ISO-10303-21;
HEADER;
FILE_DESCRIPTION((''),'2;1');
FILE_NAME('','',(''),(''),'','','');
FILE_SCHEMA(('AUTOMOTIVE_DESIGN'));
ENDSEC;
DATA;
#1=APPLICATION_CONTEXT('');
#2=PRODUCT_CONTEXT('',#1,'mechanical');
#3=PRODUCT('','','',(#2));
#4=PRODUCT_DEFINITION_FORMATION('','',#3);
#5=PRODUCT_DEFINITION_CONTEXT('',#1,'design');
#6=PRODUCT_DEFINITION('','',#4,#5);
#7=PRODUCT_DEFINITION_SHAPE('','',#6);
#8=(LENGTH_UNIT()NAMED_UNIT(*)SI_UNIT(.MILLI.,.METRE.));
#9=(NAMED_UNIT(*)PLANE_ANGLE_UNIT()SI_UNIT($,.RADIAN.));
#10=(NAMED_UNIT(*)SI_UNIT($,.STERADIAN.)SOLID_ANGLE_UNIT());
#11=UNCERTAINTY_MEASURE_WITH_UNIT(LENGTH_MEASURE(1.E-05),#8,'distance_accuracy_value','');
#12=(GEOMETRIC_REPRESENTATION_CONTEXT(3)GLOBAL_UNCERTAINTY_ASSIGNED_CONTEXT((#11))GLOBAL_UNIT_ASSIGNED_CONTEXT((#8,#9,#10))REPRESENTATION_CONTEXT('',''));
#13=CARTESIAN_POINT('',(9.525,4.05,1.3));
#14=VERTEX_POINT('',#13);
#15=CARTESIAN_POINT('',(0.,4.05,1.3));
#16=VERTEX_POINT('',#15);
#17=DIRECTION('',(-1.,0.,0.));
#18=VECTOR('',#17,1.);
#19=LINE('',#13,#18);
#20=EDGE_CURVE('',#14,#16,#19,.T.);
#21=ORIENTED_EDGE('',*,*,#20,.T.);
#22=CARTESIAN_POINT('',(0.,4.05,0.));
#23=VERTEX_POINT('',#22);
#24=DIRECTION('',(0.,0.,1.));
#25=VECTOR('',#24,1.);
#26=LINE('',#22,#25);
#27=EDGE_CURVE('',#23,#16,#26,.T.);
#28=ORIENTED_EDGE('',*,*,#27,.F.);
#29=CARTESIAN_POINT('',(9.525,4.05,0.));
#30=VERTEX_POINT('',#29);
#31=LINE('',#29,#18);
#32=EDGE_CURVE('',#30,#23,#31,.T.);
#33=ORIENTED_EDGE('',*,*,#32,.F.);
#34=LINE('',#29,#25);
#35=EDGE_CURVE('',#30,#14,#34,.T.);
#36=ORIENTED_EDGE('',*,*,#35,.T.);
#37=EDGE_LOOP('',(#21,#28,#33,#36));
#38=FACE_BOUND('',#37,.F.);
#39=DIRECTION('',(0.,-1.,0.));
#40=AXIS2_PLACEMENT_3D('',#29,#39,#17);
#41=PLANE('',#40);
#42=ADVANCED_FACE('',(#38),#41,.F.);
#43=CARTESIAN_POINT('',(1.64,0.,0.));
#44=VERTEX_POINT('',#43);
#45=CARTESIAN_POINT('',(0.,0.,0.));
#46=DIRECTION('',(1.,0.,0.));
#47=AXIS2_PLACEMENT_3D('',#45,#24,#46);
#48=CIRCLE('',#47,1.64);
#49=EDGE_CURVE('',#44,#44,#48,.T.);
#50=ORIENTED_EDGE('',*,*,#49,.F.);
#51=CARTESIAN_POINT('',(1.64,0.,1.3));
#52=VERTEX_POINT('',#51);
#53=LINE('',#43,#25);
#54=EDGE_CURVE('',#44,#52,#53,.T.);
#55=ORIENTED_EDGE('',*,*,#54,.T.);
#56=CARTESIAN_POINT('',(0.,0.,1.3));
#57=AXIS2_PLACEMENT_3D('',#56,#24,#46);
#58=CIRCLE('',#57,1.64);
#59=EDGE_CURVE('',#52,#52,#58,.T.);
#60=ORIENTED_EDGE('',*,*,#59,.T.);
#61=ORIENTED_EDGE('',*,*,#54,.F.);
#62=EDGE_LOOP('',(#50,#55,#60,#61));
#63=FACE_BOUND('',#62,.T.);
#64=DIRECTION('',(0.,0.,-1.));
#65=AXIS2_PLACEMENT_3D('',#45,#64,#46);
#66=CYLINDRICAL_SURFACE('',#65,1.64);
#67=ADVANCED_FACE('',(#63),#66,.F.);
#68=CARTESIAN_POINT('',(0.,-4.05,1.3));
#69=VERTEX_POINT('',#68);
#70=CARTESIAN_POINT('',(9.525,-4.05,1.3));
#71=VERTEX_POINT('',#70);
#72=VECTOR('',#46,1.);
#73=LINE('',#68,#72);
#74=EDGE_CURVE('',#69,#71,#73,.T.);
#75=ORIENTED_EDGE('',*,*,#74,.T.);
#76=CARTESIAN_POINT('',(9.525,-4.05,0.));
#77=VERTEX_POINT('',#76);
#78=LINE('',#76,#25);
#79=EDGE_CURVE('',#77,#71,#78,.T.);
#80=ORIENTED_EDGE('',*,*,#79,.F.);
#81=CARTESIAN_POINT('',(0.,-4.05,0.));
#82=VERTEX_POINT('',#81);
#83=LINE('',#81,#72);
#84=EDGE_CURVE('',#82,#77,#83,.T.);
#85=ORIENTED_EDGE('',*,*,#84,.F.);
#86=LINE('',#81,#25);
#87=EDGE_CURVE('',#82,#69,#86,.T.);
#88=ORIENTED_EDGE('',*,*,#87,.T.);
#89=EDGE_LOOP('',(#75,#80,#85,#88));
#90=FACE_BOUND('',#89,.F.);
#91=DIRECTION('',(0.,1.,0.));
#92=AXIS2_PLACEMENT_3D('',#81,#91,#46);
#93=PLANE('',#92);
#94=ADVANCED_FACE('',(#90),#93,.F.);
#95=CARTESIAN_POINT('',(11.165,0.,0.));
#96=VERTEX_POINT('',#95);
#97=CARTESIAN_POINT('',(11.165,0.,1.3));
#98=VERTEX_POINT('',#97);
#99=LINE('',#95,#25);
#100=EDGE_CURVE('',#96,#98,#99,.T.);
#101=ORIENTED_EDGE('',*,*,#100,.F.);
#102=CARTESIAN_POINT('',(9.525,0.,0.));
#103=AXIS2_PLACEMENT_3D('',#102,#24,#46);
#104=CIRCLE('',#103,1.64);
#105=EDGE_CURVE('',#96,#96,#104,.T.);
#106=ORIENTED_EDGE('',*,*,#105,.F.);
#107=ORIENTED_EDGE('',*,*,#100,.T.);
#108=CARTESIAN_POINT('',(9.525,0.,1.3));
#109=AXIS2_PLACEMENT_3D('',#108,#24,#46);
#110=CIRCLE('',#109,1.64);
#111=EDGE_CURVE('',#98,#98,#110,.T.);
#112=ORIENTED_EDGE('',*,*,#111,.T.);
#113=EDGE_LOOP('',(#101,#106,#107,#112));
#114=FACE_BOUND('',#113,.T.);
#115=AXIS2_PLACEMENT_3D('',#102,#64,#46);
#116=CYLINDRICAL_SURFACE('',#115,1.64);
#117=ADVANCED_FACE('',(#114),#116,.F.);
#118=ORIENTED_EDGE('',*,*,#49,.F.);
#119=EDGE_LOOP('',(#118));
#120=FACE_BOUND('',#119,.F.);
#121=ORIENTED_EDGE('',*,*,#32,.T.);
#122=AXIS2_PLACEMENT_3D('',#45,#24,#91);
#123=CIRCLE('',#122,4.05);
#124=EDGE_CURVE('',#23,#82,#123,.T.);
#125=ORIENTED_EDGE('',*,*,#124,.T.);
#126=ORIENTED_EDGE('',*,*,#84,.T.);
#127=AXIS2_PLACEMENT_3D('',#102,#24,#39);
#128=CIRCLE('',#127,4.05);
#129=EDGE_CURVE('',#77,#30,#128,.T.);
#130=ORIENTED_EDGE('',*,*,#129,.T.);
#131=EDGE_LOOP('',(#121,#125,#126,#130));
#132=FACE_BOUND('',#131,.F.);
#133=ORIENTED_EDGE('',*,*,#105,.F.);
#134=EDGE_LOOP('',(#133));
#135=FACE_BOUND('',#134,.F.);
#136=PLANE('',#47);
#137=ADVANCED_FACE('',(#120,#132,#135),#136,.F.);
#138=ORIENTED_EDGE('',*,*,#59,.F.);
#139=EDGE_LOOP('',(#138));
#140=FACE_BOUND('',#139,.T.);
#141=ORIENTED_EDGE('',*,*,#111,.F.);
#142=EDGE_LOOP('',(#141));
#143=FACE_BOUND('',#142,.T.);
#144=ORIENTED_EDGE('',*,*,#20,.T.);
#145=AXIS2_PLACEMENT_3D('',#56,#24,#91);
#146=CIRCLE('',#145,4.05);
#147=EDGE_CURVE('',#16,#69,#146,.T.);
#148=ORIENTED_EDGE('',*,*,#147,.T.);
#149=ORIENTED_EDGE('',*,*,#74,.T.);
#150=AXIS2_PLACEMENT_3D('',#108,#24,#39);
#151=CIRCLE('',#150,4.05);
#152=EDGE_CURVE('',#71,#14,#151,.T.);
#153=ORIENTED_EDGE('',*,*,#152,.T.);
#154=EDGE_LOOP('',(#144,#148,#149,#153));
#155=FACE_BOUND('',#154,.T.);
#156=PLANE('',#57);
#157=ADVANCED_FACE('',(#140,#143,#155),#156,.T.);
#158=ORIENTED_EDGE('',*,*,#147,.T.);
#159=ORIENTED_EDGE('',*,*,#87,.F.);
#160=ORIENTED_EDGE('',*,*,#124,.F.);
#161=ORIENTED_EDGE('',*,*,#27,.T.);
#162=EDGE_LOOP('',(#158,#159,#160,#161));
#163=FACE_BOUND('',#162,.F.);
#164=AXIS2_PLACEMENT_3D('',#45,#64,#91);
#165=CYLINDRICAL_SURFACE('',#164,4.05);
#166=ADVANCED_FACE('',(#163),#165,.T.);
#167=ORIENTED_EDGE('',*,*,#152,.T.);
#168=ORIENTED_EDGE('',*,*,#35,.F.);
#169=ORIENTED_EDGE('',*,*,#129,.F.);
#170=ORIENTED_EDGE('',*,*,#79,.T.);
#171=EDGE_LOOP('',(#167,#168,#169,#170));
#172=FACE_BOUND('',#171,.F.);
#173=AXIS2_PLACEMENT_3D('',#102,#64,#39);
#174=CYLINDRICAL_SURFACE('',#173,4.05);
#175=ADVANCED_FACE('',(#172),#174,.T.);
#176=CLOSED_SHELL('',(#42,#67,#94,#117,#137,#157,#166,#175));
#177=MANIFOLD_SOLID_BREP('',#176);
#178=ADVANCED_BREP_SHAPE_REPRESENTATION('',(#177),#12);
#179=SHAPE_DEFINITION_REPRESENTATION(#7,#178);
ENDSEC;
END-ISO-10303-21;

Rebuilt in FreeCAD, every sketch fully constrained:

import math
import FreeCAD as App
import Part
import Sketcher
Q = App.Units.Quantity

doc = App.newDocument("Part")
body = doc.addObject("PartDesign::Body", "Body")

# Sketch on XY plane
sketch1 = body.newObject("Sketcher::SketchObject", "Sketch")
sketch1.AttachmentSupport = (doc.getObject("XY_Plane"), [""])
sketch1.MapMode = "FlatFace"
sketch1.addGeometry([
    Part.LineSegment(App.Vector(9.525, 4.05, 0), App.Vector(0, 4.05, 0)),  # 0
    Part.ArcOfCircle(Part.Circle(App.Vector(0, 0, 0), App.Vector(0, 0, 1), 4.05), math.radians(90), math.radians(270)),  # 1
    Part.LineSegment(App.Vector(0, -4.05, 0), App.Vector(9.525, -4.05, 0)),  # 2
    Part.ArcOfCircle(Part.Circle(App.Vector(9.525, 0, 0), App.Vector(0, 0, 1), 4.05), math.radians(-90), math.radians(90)),  # 3
    Part.Circle(App.Vector(0, 0, 0), App.Vector(0, 0, 1), 1.64),  # 4
    Part.Circle(App.Vector(9.525, 0, 0), App.Vector(0, 0, 1), 1.64),  # 5
], False)
sketch1.addConstraint([
    Sketcher.Constraint("Tangent", 0, 2, 1, 1),
    Sketcher.Constraint("Tangent", 1, 2, 2, 1),
    Sketcher.Constraint("Tangent", 2, 2, 3, 1),
    Sketcher.Constraint("Tangent", 3, 2, 0, 1),
    Sketcher.Constraint("Horizontal", 0),
    Sketcher.Constraint("Horizontal", 2),
    Sketcher.Constraint("Coincident", 1, 3, -1, 1),
    Sketcher.Constraint("Coincident", 4, 3, -1, 1),
    Sketcher.Constraint("Coincident", 5, 3, 3, 3),
    Sketcher.Constraint("Equal", 4, 5),
    Sketcher.Constraint("Diameter", 4, Q("3.28 mm")),
    Sketcher.Constraint("Radius", 1, Q("4.05 mm")),
    Sketcher.Constraint("DistanceX", 0, 2, 0, 1, Q("9.525 mm")),
])
pad1 = body.newObject("PartDesign::Pad", "Pad")
pad1.Profile = sketch1
pad1.Length = 1.3

doc.recompute()
